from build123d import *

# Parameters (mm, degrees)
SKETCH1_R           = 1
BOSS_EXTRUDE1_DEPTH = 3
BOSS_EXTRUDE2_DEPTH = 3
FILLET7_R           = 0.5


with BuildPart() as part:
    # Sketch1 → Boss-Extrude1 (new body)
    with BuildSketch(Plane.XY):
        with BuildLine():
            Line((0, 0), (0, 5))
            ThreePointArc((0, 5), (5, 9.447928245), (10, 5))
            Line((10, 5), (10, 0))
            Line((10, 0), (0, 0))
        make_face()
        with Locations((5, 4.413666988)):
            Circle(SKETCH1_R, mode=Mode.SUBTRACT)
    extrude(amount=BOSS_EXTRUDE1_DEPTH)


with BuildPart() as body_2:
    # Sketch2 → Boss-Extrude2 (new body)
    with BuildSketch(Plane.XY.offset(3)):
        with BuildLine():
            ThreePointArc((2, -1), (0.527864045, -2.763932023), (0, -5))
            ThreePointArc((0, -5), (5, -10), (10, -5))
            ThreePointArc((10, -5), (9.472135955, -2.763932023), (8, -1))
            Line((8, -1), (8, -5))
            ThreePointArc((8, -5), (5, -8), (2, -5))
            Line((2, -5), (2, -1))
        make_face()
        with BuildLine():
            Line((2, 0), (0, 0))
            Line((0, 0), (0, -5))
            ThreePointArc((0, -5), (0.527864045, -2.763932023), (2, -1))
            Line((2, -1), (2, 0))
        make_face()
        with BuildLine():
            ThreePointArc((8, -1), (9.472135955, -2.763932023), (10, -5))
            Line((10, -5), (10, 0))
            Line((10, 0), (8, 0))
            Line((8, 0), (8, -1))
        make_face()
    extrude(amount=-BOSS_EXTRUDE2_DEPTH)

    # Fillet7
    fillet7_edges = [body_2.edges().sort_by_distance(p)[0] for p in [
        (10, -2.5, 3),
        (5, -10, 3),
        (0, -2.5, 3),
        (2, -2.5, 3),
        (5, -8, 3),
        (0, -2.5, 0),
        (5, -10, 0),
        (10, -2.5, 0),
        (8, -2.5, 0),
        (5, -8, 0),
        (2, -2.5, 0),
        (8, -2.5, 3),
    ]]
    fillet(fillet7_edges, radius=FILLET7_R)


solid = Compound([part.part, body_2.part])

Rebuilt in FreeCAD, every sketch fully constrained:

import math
import FreeCAD as App
import Part
import Sketcher
Q = App.Units.Quantity


def edges_at(feature, points):
    """Names of the edges that pass closest to the given points."""
    edges = feature.Shape.Edges
    near = lambda p: min(range(len(edges)), key=lambda i: edges[i].distToShape(Part.Vertex(*p))[0])
    return sorted({f"Edge{near(p) + 1}" for p in points})

doc = App.newDocument("Part")
body = doc.addObject("PartDesign::Body", "Body")

sketch1 = doc.addObject("Sketcher::SketchObject", "Sketch")
body.addObject(sketch1)
sketch1.AttachmentSupport = (doc.XY_Plane, [""])
sketch1.MapMode = "FlatFace"
sketch1.addGeometry(Part.LineSegment(App.Vector(0, 5, 0), App.Vector(0, 0, 0)), False)
sketch1.addGeometry(Part.LineSegment(App.Vector(0, 0, 0), App.Vector(10, 0, 0)), False)
sketch1.addGeometry(Part.LineSegment(App.Vector(10, 0, 0), App.Vector(10, 5, 0)), False)
sketch1.addGeometry(Part.ArcOfCircle(Part.Circle(App.Vector(5, 4.4, 0), App.Vector(0, 0, 1), 5), math.radians(7), math.radians(173)), False)
sketch1.addGeometry(Part.Circle(App.Vector(5, 4.4, 0), App.Vector(0, 0, 1), 1), False)
sketch1.addConstraint(Sketcher.Constraint("Coincident", 0, 2, 1, 1))
sketch1.addConstraint(Sketcher.Constraint("Coincident", 1, 2, 2, 1))
sketch1.addConstraint(Sketcher.Constraint("Coincident", 2, 2, 3, 1))
sketch1.addConstraint(Sketcher.Constraint("Coincident", 3, 2, 0, 1))
sketch1.addConstraint(Sketcher.Constraint("Vertical", 0))
sketch1.addConstraint(Sketcher.Constraint("Horizontal", 1))
sketch1.addConstraint(Sketcher.Constraint("Vertical", 2))
sketch1.addConstraint(Sketcher.Constraint("Coincident", 0, 2, -1, 1))
sketch1.addConstraint(Sketcher.Constraint("Coincident", 4, 3, 3, 3))
sketch1.addConstraint(Sketcher.Constraint("Horizontal", 2, 2, 3, 2))
sketch1.addConstraint(Sketcher.Constraint("Diameter", 4, Q("2 mm")))
sketch1.addConstraint(Sketcher.Constraint("DistanceX", 1, 1, 1, 2, Q("10 mm")))
sketch1.addConstraint(Sketcher.Constraint("DistanceY", 0, 2, 0, 1, Q("5 mm")))
sketch1.addConstraint(Sketcher.Constraint("Radius", 3, Q("5.034261 mm")))
pad1 = doc.addObject("PartDesign::Pad", "Pad")
body.addObject(pad1)
pad1.Profile = sketch1
pad1.Length = 3
body2 = doc.addObject("PartDesign::Body", "Body001")

sketch2 = doc.addObject("Sketcher::SketchObject", "Sketch001")
body2.addObject(sketch2)
sketch2.AttachmentSupport = (doc.getObject("XY_Plane001"), [""])
sketch2.MapMode = "FlatFace"
sketch2.AttachmentOffset = App.Placement(App.Vector(0, 0, 3), App.Rotation())
sketch2.addGeometry(Part.ArcOfCircle(Part.Circle(App.Vector(5, -5, 0), App.Vector(0, 0, 1), 5), math.radians(180), math.radians(360)), False)
sketch2.addGeometry(Part.LineSegment(App.Vector(10, -5, 0), App.Vector(10, 0, 0)), False)
sketch2.addGeometry(Part.LineSegment(App.Vector(10, 0, 0), App.Vector(8, 0, 0)), False)
sketch2.addGeometry(Part.LineSegment(App.Vector(8, 0, 0), App.Vector(8, -5, 0)), False)
sketch2.addGeometry(Part.ArcOfCircle(Part.Circle(App.Vector(5, -5, 0), App.Vector(0, 0, 1), 3), math.radians(180), math.radians(360)), False)
sketch2.addGeometry(Part.LineSegment(App.Vector(2, -5, 0), App.Vector(2, 0, 0)), False)
sketch2.addGeometry(Part.LineSegment(App.Vector(2, 0, 0), App.Vector(0, 0, 0)), False)
sketch2.addGeometry(Part.LineSegment(App.Vector(0, 0, 0), App.Vector(0, -5, 0)), False)
sketch2.addConstraint(Sketcher.Constraint("Tangent", 0, 2, 1, 1))
sketch2.addConstraint(Sketcher.Constraint("Coincident", 1, 2, 2, 1))
sketch2.addConstraint(Sketcher.Constraint("Coincident", 2, 2, 3, 1))
sketch2.addConstraint(Sketcher.Constraint("Tangent", 3, 2, 4, 2))
sketch2.addConstraint(Sketcher.Constraint("Tangent", 4, 1, 5, 1))
sketch2.addConstraint(Sketcher.Constraint("Coincident", 5, 2, 6, 1))
sketch2.addConstraint(Sketcher.Constraint("Coincident", 6, 2, 7, 1))
sketch2.addConstraint(Sketcher.Constraint("Tangent", 7, 2, 0, 1))
sketch2.addConstraint(Sketcher.Constraint("Vertical", 1))
sketch2.addConstraint(Sketcher.Constraint("Horizontal", 2))
sketch2.addConstraint(Sketcher.Constraint("Vertical", 3))
sketch2.addConstraint(Sketcher.Constraint("Vertical", 5))
sketch2.addConstraint(Sketcher.Constraint("Horizontal", 6))
sketch2.addConstraint(Sketcher.Constraint("Vertical", 7))
sketch2.addConstraint(Sketcher.Constraint("Coincident", 6, 2, -1, 1))
sketch2.addConstraint(Sketcher.Constraint("Coincident", 4, 3, 0, 3))
sketch2.addConstraint(Sketcher.Constraint("PointOnObject", 1, 2, -1))
sketch2.addConstraint(Sketcher.Constraint("Radius", 0, Q("5 mm")))
sketch2.addConstraint(Sketcher.Constraint("Radius", 4, Q("3 mm")))
sketch2.addConstraint(Sketcher.Constraint("DistanceY", 1, 1, 1, 2, Q("5 mm")))
pad2 = doc.addObject("PartDesign::Pad", "Pad001")
body2.addObject(pad2)
pad2.Profile = sketch2
pad2.Length = 3
pad2.Reversed = True
doc.recompute()

fillet = doc.addObject("PartDesign::Fillet", "Fillet")
body2.addObject(fillet)
fillet.Base = (pad2, edges_at(pad2, [
    (10, -2.5, 3),
    (5, -10, 3),
    (0, -2.5, 3),
    (2, -2.5, 3),
    (5, -8, 3),
    (0, -2.5, 0),
    (5, -10, 0),
    (10, -2.5, 0),
    (8, -2.5, 0),
    (5, -8, 0),
    (2, -2.5, 0),
    (8, -2.5, 3),
]))
fillet.Radius = 0.5

doc.recompute()
